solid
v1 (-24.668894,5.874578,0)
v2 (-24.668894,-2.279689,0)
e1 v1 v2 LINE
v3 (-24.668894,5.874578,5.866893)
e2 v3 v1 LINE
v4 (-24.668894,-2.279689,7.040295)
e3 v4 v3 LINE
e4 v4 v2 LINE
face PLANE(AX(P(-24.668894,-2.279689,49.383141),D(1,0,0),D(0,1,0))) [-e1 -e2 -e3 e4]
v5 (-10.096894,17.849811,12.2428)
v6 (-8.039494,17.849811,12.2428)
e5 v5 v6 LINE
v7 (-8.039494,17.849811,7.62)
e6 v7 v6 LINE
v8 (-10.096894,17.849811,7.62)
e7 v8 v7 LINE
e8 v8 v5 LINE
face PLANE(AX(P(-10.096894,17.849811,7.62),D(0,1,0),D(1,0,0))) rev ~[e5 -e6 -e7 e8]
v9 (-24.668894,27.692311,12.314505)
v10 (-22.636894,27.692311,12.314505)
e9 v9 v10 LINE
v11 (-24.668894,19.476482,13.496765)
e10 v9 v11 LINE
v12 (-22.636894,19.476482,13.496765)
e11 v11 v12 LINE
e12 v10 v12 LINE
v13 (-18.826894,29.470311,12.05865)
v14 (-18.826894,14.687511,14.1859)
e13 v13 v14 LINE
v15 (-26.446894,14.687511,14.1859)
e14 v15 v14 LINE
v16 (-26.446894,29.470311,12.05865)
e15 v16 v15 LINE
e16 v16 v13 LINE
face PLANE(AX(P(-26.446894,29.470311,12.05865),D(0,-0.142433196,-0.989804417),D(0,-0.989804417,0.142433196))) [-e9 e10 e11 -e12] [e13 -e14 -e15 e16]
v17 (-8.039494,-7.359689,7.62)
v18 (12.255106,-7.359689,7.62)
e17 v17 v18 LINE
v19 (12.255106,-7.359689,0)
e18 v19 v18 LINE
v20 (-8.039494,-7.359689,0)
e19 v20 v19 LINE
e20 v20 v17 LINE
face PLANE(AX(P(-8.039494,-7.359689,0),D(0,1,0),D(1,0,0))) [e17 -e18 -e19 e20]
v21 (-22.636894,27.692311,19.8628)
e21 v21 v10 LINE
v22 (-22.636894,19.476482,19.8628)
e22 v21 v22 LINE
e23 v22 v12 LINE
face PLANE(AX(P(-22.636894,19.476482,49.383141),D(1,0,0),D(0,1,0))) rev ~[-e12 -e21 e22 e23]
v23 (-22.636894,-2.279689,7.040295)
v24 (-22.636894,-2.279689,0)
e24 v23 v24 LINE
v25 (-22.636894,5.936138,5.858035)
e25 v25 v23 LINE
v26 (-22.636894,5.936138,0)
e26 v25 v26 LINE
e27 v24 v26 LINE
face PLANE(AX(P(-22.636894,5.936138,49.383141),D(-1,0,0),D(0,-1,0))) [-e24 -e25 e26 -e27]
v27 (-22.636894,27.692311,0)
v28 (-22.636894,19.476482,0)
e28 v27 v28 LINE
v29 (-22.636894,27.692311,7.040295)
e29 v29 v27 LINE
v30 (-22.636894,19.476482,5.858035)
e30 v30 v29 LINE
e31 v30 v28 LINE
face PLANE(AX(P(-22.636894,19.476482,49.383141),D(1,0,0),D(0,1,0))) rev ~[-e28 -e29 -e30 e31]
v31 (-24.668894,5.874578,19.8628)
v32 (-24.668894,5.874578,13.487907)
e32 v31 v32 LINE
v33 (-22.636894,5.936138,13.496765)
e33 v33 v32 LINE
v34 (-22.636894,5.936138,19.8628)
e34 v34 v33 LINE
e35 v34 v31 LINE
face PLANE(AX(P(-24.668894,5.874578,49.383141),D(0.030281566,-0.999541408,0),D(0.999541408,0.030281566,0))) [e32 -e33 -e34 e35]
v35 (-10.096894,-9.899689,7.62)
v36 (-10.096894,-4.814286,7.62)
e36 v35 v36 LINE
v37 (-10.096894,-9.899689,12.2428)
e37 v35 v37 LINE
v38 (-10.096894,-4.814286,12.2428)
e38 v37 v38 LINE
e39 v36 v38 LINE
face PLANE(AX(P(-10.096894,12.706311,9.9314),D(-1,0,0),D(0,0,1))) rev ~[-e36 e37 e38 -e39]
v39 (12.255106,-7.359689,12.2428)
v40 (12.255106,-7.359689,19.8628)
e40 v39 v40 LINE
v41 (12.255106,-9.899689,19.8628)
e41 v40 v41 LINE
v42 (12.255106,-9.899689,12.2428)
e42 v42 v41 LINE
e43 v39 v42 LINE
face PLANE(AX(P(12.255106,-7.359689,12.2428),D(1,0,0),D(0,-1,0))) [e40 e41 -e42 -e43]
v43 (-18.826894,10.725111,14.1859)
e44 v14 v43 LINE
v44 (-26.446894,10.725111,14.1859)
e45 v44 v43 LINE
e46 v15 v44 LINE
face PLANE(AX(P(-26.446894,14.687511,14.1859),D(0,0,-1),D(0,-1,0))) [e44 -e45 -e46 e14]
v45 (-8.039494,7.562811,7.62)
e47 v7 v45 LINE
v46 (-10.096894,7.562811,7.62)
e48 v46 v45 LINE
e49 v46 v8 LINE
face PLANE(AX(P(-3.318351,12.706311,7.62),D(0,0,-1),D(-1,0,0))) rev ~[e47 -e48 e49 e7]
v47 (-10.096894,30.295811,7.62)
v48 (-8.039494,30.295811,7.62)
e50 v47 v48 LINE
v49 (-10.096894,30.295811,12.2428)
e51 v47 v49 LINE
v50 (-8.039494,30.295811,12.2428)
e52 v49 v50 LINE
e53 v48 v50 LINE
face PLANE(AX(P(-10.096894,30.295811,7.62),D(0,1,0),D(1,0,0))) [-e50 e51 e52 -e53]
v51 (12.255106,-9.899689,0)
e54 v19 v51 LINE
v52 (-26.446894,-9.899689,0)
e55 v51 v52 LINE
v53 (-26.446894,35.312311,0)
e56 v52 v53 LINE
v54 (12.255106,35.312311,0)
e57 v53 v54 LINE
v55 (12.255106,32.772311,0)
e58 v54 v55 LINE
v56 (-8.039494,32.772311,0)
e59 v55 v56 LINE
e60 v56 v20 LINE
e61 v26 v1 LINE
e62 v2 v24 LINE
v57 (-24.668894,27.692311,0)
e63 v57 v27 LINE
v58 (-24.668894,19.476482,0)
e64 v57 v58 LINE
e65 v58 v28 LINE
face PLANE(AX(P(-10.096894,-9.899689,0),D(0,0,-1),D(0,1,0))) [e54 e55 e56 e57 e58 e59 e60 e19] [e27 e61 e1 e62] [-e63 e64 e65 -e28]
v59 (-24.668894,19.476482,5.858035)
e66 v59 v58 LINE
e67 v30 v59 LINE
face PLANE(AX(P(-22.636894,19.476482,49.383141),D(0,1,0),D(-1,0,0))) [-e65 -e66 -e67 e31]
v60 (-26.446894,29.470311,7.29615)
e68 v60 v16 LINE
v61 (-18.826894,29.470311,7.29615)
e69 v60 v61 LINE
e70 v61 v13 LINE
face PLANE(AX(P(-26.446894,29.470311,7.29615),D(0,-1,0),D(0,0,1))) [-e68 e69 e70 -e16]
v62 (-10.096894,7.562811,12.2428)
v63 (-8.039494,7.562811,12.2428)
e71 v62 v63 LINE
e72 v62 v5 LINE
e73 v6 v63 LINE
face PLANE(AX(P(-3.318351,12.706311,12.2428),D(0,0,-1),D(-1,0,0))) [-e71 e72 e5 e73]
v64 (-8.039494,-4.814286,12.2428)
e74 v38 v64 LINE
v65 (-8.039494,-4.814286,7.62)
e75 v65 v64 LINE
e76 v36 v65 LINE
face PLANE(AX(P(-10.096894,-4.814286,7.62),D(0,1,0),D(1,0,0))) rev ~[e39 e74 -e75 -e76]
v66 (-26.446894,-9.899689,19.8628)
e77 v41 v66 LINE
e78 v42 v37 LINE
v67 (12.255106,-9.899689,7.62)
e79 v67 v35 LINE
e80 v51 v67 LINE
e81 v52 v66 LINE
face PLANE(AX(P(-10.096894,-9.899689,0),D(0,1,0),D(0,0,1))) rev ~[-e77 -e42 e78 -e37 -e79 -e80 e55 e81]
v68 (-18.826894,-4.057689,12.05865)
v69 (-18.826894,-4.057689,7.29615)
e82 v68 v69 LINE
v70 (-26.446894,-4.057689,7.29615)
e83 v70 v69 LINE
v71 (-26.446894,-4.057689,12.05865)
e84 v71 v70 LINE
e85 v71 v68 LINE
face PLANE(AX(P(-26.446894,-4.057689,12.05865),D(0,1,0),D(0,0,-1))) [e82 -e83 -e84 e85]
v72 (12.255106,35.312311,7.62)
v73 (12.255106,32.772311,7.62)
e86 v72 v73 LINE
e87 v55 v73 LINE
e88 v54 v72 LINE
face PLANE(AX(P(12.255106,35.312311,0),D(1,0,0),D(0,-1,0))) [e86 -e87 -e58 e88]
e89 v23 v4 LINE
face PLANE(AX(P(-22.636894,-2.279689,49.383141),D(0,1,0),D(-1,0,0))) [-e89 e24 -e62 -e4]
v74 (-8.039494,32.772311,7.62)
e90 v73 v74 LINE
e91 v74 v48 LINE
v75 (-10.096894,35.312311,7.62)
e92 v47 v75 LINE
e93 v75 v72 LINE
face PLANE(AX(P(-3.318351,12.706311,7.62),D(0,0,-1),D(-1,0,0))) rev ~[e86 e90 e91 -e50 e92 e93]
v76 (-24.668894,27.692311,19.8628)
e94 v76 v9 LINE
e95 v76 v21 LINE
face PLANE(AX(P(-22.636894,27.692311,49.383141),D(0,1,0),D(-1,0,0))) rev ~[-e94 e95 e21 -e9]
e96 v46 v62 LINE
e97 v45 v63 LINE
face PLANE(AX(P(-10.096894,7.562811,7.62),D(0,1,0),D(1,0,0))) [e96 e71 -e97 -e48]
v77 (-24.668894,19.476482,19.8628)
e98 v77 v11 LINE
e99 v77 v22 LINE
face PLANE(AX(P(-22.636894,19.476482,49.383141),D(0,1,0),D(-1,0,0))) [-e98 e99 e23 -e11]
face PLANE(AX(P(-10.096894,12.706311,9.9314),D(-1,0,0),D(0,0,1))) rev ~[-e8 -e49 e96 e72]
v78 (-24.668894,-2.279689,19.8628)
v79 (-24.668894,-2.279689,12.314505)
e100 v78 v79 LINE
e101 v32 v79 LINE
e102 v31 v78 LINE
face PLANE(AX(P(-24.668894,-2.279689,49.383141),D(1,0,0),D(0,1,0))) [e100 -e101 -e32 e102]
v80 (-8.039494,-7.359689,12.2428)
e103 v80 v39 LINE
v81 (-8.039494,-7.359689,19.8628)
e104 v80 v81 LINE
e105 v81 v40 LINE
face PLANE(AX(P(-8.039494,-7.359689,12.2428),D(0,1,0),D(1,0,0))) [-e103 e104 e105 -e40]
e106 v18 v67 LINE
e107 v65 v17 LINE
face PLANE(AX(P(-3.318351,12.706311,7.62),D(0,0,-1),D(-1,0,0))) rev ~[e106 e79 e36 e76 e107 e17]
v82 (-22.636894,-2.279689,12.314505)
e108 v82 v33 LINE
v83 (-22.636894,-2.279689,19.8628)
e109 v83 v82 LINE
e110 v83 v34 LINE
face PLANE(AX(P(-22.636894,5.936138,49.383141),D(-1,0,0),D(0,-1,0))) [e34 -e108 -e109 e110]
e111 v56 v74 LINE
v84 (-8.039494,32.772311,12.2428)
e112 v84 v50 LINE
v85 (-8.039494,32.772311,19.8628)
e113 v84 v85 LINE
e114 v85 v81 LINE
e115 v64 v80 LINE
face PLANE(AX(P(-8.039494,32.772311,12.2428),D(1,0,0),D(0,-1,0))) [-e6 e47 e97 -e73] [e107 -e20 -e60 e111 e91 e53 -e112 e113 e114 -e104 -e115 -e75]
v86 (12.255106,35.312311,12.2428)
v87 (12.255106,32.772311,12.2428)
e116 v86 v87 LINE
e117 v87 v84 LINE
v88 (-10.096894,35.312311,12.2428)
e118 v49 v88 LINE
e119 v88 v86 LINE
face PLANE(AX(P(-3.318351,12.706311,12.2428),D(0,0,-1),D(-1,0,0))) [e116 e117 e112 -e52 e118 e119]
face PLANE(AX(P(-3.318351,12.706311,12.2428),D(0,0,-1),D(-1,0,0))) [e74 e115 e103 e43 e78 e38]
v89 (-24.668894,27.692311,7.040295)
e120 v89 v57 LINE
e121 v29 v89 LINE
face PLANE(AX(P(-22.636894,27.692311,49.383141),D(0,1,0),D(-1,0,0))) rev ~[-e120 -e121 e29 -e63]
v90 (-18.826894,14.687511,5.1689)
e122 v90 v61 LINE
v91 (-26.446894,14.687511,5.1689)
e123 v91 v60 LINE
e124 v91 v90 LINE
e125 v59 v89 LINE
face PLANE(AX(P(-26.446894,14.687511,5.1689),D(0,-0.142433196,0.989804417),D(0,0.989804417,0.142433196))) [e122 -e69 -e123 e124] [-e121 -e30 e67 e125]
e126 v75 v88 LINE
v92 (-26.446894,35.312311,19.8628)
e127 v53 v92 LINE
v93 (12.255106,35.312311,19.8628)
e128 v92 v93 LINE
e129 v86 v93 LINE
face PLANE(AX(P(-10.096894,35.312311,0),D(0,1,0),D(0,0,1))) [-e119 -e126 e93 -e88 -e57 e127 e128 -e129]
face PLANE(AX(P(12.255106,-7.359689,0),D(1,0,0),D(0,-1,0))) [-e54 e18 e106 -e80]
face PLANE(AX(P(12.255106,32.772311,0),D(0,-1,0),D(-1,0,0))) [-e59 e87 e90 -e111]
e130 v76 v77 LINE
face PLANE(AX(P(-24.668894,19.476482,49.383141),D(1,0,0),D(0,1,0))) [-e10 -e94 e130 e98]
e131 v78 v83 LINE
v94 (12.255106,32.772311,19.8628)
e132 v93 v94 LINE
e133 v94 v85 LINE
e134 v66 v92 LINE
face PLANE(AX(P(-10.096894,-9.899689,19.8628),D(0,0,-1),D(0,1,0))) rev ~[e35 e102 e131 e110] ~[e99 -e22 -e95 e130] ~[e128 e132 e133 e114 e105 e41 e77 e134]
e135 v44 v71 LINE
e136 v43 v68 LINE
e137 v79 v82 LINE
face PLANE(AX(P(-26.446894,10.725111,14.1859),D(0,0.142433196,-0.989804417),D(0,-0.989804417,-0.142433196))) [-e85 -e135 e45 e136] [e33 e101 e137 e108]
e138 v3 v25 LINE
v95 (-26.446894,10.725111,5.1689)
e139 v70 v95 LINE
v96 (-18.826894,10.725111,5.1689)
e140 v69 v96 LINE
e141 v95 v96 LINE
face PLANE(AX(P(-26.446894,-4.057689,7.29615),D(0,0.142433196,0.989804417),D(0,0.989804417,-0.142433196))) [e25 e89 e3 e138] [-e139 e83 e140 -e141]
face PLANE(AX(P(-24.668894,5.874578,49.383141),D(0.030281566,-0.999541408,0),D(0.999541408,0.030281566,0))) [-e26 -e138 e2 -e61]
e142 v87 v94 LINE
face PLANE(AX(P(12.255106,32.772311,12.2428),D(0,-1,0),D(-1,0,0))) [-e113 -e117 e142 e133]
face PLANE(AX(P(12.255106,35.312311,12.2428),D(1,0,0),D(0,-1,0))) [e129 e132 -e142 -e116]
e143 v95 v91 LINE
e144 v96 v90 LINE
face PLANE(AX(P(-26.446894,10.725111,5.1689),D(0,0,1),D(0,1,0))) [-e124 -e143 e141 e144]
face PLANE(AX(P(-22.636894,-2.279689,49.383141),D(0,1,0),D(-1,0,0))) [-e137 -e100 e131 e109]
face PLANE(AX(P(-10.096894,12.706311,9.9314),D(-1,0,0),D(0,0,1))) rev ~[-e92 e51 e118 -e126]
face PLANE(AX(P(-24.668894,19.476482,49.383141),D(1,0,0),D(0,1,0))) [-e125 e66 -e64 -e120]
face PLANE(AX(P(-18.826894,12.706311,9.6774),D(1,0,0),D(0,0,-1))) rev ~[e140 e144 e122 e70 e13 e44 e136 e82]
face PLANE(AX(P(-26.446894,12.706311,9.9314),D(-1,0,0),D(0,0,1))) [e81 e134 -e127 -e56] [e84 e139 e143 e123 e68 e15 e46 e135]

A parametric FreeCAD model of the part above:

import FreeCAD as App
import Part
import Sketcher

V = App.Vector
Q = App.Units.Quantity


def add_polygon(sketch, points):
    """Adds a closed chain of lines whose ends are joined by coincident constraints."""
    first, n = sketch.GeometryCount, len(points)
    for a, b in zip(points, points[1:] + points[:1]):
        sketch.addGeometry(Part.LineSegment(App.Vector(*a, 0), App.Vector(*b, 0)), False)
    for i in range(n):
        sketch.addConstraint(Sketcher.Constraint("Coincident", first + i, 2, first + (i + 1) % n, 1))

doc = App.newDocument("Part")
body = doc.addObject("PartDesign::Body", "Body")

sketch1 = body.newObject("Sketcher::SketchObject", "Sketch")
sketch1.AttachmentSupport = (doc.getObject("XY_Plane"), [""])
sketch1.MapMode = "FlatFace"
add_polygon(sketch1, [(12.3, 32.8), (12.3, 35.3), (-10.1, 35.3), (-10.1, -9.9), (12.3, -9.9), (12.3, -7.4), (-8, -7.4), (-8, 32.8)])
sketch1.addConstraint([
    Sketcher.Constraint("Vertical", 0),
    Sketcher.Constraint("Horizontal", 1),
    Sketcher.Constraint("Vertical", 2),
    Sketcher.Constraint("Horizontal", 3),
    Sketcher.Constraint("Vertical", 4),
    Sketcher.Constraint("Horizontal", 5),
    Sketcher.Constraint("Vertical", 6),
    Sketcher.Constraint("Horizontal", 7),
    Sketcher.Constraint("Vertical", 0, 2, 3, 2),
    Sketcher.Constraint("Equal", 0, 4),
    Sketcher.Constraint("DistanceY", 0, 1, 0, 2, Q("0.1 in")),
    Sketcher.Constraint("DistanceX", 1, 2, 1, 1, Q("0.88 in")),
    Sketcher.Constraint("DistanceY", 2, 2, 2, 1, Q("1.78 in")),
    Sketcher.Constraint("DistanceX", 5, 2, 5, 1, Q("0.799 in")),
    Sketcher.Constraint("DistanceY", -1, 1, 0, 2, 35.312311),
    Sketcher.Constraint("DistanceX", -1, 1, 0, 2, 12.255106),
])
pad1 = body.newObject("PartDesign::Pad", "Pad")
pad1.Profile = sketch1
pad1.Length = Q("0.3 in")

sketch2 = body.newObject("Sketcher::SketchObject", "Sketch001")
sketch2.AttachmentSupport = (doc.getObject("XY_Plane"), [""])
sketch2.MapMode = "FlatFace"
sketch2.AttachmentOffset = App.Placement(V(0, 0, 0.3 * 25.4), App.Rotation())
add_polygon(sketch2, [(-10.1, 30.3), (-10.1, 17.8), (-8, 17.8), (-8, 30.3)])
add_polygon(sketch2, [(-10.1, 7.6), (-10.1, -4.8), (-8, -4.8), (-8, 7.6)])
sketch2.addConstraint([
    Sketcher.Constraint("Vertical", 0),
    Sketcher.Constraint("Horizontal", 1),
    Sketcher.Constraint("Vertical", 2),
    Sketcher.Constraint("Horizontal", 3),
    Sketcher.Constraint("Vertical", 4),
    Sketcher.Constraint("Horizontal", 5),
    Sketcher.Constraint("Vertical", 6),
    Sketcher.Constraint("Horizontal", 7),
    Sketcher.Constraint("Vertical", 3, 2, 4, 2),
    Sketcher.Constraint("Vertical", 2, 2, 5, 2),
    Sketcher.Constraint("DistanceY", 0, 2, 0, 1, Q("0.49 in")),
    Sketcher.Constraint("DistanceX", 1, 1, 1, 2, Q("0.081 in")),
    Sketcher.Constraint("DistanceY", 6, 2, 1, 2, Q("0.405 in")),
    Sketcher.Constraint("DistanceY", 4, 2, 4, 1, 12.377097),
    Sketcher.Constraint("DistanceY", -1, 1, 0, 2, 17.849811),
    Sketcher.Constraint("DistanceX", 0, 2, -1, 1, 10.096894),
])
pad2 = body.newObject("PartDesign::Pad", "Pad001")
pad2.Profile = sketch2
pad2.Length = Q("0.182 in")

sketch3 = body.newObject("Sketcher::SketchObject", "Sketch002")
sketch3.AttachmentSupport = (doc.getObject("XY_Plane"), [""])
sketch3.MapMode = "FlatFace"
sketch3.AttachmentOffset = App.Placement(V(0, 0, 0.482 * 25.4), App.Rotation())
add_polygon(sketch3, [(12.3, 32.8), (12.3, 35.3), (-10.1, 35.3), (-10.1, -9.9), (12.3, -9.9), (12.3, -7.4), (-8, -7.4), (-8, 32.8)])
sketch3.addConstraint([
    Sketcher.Constraint("Vertical", 0),
    Sketcher.Constraint("Horizontal", 1),
    Sketcher.Constraint("Vertical", 2),
    Sketcher.Constraint("Horizontal", 3),
    Sketcher.Constraint("Vertical", 4),
    Sketcher.Constraint("Horizontal", 5),
    Sketcher.Constraint("Vertical", 6),
    Sketcher.Constraint("Horizontal", 7),
    Sketcher.Constraint("Vertical", 0, 2, 3, 2),
    Sketcher.Constraint("Equal", 0, 4),
    Sketcher.Constraint("DistanceY", 0, 1, 0, 2, Q("0.1 in")),
    Sketcher.Constraint("DistanceX", 1, 2, 1, 1, Q("0.88 in")),
    Sketcher.Constraint("DistanceY", 2, 2, 2, 1, Q("1.78 in")),
    Sketcher.Constraint("DistanceX", 5, 2, 5, 1, Q("0.799 in")),
    Sketcher.Constraint("DistanceY", -1, 1, 0, 2, 35.312311),
    Sketcher.Constraint("DistanceX", -1, 1, 0, 2, 12.255106),
])
pad3 = body.newObject("PartDesign::Pad", "Pad002")
pad3.Profile = sketch3
pad3.Length = Q("0.3 in")

sketch4 = body.newObject("Sketcher::SketchObject", "Sketch003")
sketch4.AttachmentSupport = (doc.getObject("YZ_Plane"), [""])
sketch4.MapMode = "FlatFace"
sketch4.AttachmentOffset = App.Placement(V(0, 0, -10.096894), App.Rotation())
add_polygon(sketch4, [(35, 0), (-10, 0), (-10, 20), (35, 20)])
sketch4.addConstraint([
    Sketcher.Constraint("Horizontal", 0),
    Sketcher.Constraint("Vertical", 1),
    Sketcher.Constraint("Horizontal", 2),
    Sketcher.Constraint("Vertical", 3),
    Sketcher.Constraint("PointOnObject", 0, 2, -1),
    Sketcher.Constraint("DistanceX", 0, 2, 0, 1, Q("1.78 in")),
    Sketcher.Constraint("DistanceY", 1, 1, 1, 2, Q("0.782 in")),
    Sketcher.Constraint("DistanceX", 0, 2, -1, 1, 9.899689),
])
pad4 = body.newObject("PartDesign::Pad", "Pad003")
pad4.Profile = sketch4
pad4.Length = 16.35
pad4.Reversed = True

sketch5 = body.newObject("Sketcher::SketchObject", "Sketch004")
sketch5.AttachmentSupport = (doc.getObject("YZ_Plane"), [""])
sketch5.MapMode = "FlatFace"
sketch5.AttachmentOffset = App.Placement(V(0, 0, -26.446894), App.Rotation())
add_polygon(sketch5, [(29.5, 12.1), (29.5, 7.3), (14.7, 5.2), (10.7, 5.2), (-4.1, 7.3), (-4.1, 12.1), (10.7, 14.2), (14.7, 14.2)])
sketch5.addConstraint([
    Sketcher.Constraint("Vertical", 0),
    Sketcher.Constraint("Horizontal", 2),
    Sketcher.Constraint("Vertical", 4),
    Sketcher.Constraint("Horizontal", 6),
    Sketcher.Constraint("Parallel", 1, 5),
    Sketcher.Constraint("Parallel", 3, 7),
    Sketcher.Constraint("Horizontal", 0, 2, 3, 2),
    Sketcher.Constraint("Horizontal", 4, 2, 7, 2),
    Sketcher.Constraint("Vertical", 2, 2, 5, 2),
    Sketcher.Constraint("Vertical", 1, 2, 6, 2),
    Sketcher.Constraint("DistanceX", 2, 2, 2, 1, Q("0.156 in")),
    Sketcher.Constraint("DistanceY", 0, 2, 0, 1, Q("0.1875 in")),
    Sketcher.Constraint("DistanceX", 3, 2, 0, 2, Q("1.32 in")),
    Sketcher.Constraint("DistanceY", 2, 2, 5, 2, Q("0.355 in")),
    Sketcher.Constraint("DistanceY", -1, 1, 1, 2, Q("0.2035 in")),
    Sketcher.Constraint("DistanceX", -1, 1, 0, 2, 29.470311),
])
pocket1 = body.newObject("PartDesign::Pocket", "Pocket")
pocket1.Profile = sketch5
pocket1.Length = Q("0.3 in")
pocket1.Reversed = True

sketch6 = body.newObject("Sketcher::SketchObject", "Sketch005")
sketch6.AttachmentSupport = (doc.getObject("XY_Plane"), [""])
sketch6.MapMode = "FlatFace"
add_polygon(sketch6, [(-22.6, 27.7), (-22.6, 19.5), (-24.7, 19.5), (-24.7, 27.7)])
add_polygon(sketch6, [(-24.7, 5.9), (-22.6, 5.9), (-22.6, -2.3), (-24.7, -2.3)])
sketch6.addConstraint([
    Sketcher.Constraint("Vertical", 0),
    Sketcher.Constraint("Horizontal", 1),
    Sketcher.Constraint("Vertical", 2),
    Sketcher.Constraint("Horizontal", 3),
    Sketcher.Constraint("Vertical", 5),
    Sketcher.Constraint("Horizontal", 6),
    Sketcher.Constraint("Vertical", 7),
    Sketcher.Constraint("Vertical", 3, 2, 4, 2),
    Sketcher.Constraint("Vertical", 2, 2, 6, 2),
    Sketcher.Constraint("Equal", 2, 5),
    Sketcher.Constraint("DistanceX", 1, 2, 1, 1, Q("0.08 in")),
    Sketcher.Constraint("DistanceY", 5, 2, 3, 2, Q("1.18 in")),
    Sketcher.Constraint("DistanceY", 0, 2, 0, 1, 8.215828),
    Sketcher.Constraint("DistanceY", 7, 1, 7, 2, 8.154268),
    Sketcher.Constraint("DistanceY", -1, 1, 2, 2, 27.692311),
    Sketcher.Constraint("DistanceX", 0, 2, -1, 1, 22.636894),
])
pocket2 = body.newObject("PartDesign::Pocket", "Pocket001")
pocket2.Profile = sketch6
pocket2.Type = "ThroughAll"
pocket2.Midplane = True

doc.recompute()
